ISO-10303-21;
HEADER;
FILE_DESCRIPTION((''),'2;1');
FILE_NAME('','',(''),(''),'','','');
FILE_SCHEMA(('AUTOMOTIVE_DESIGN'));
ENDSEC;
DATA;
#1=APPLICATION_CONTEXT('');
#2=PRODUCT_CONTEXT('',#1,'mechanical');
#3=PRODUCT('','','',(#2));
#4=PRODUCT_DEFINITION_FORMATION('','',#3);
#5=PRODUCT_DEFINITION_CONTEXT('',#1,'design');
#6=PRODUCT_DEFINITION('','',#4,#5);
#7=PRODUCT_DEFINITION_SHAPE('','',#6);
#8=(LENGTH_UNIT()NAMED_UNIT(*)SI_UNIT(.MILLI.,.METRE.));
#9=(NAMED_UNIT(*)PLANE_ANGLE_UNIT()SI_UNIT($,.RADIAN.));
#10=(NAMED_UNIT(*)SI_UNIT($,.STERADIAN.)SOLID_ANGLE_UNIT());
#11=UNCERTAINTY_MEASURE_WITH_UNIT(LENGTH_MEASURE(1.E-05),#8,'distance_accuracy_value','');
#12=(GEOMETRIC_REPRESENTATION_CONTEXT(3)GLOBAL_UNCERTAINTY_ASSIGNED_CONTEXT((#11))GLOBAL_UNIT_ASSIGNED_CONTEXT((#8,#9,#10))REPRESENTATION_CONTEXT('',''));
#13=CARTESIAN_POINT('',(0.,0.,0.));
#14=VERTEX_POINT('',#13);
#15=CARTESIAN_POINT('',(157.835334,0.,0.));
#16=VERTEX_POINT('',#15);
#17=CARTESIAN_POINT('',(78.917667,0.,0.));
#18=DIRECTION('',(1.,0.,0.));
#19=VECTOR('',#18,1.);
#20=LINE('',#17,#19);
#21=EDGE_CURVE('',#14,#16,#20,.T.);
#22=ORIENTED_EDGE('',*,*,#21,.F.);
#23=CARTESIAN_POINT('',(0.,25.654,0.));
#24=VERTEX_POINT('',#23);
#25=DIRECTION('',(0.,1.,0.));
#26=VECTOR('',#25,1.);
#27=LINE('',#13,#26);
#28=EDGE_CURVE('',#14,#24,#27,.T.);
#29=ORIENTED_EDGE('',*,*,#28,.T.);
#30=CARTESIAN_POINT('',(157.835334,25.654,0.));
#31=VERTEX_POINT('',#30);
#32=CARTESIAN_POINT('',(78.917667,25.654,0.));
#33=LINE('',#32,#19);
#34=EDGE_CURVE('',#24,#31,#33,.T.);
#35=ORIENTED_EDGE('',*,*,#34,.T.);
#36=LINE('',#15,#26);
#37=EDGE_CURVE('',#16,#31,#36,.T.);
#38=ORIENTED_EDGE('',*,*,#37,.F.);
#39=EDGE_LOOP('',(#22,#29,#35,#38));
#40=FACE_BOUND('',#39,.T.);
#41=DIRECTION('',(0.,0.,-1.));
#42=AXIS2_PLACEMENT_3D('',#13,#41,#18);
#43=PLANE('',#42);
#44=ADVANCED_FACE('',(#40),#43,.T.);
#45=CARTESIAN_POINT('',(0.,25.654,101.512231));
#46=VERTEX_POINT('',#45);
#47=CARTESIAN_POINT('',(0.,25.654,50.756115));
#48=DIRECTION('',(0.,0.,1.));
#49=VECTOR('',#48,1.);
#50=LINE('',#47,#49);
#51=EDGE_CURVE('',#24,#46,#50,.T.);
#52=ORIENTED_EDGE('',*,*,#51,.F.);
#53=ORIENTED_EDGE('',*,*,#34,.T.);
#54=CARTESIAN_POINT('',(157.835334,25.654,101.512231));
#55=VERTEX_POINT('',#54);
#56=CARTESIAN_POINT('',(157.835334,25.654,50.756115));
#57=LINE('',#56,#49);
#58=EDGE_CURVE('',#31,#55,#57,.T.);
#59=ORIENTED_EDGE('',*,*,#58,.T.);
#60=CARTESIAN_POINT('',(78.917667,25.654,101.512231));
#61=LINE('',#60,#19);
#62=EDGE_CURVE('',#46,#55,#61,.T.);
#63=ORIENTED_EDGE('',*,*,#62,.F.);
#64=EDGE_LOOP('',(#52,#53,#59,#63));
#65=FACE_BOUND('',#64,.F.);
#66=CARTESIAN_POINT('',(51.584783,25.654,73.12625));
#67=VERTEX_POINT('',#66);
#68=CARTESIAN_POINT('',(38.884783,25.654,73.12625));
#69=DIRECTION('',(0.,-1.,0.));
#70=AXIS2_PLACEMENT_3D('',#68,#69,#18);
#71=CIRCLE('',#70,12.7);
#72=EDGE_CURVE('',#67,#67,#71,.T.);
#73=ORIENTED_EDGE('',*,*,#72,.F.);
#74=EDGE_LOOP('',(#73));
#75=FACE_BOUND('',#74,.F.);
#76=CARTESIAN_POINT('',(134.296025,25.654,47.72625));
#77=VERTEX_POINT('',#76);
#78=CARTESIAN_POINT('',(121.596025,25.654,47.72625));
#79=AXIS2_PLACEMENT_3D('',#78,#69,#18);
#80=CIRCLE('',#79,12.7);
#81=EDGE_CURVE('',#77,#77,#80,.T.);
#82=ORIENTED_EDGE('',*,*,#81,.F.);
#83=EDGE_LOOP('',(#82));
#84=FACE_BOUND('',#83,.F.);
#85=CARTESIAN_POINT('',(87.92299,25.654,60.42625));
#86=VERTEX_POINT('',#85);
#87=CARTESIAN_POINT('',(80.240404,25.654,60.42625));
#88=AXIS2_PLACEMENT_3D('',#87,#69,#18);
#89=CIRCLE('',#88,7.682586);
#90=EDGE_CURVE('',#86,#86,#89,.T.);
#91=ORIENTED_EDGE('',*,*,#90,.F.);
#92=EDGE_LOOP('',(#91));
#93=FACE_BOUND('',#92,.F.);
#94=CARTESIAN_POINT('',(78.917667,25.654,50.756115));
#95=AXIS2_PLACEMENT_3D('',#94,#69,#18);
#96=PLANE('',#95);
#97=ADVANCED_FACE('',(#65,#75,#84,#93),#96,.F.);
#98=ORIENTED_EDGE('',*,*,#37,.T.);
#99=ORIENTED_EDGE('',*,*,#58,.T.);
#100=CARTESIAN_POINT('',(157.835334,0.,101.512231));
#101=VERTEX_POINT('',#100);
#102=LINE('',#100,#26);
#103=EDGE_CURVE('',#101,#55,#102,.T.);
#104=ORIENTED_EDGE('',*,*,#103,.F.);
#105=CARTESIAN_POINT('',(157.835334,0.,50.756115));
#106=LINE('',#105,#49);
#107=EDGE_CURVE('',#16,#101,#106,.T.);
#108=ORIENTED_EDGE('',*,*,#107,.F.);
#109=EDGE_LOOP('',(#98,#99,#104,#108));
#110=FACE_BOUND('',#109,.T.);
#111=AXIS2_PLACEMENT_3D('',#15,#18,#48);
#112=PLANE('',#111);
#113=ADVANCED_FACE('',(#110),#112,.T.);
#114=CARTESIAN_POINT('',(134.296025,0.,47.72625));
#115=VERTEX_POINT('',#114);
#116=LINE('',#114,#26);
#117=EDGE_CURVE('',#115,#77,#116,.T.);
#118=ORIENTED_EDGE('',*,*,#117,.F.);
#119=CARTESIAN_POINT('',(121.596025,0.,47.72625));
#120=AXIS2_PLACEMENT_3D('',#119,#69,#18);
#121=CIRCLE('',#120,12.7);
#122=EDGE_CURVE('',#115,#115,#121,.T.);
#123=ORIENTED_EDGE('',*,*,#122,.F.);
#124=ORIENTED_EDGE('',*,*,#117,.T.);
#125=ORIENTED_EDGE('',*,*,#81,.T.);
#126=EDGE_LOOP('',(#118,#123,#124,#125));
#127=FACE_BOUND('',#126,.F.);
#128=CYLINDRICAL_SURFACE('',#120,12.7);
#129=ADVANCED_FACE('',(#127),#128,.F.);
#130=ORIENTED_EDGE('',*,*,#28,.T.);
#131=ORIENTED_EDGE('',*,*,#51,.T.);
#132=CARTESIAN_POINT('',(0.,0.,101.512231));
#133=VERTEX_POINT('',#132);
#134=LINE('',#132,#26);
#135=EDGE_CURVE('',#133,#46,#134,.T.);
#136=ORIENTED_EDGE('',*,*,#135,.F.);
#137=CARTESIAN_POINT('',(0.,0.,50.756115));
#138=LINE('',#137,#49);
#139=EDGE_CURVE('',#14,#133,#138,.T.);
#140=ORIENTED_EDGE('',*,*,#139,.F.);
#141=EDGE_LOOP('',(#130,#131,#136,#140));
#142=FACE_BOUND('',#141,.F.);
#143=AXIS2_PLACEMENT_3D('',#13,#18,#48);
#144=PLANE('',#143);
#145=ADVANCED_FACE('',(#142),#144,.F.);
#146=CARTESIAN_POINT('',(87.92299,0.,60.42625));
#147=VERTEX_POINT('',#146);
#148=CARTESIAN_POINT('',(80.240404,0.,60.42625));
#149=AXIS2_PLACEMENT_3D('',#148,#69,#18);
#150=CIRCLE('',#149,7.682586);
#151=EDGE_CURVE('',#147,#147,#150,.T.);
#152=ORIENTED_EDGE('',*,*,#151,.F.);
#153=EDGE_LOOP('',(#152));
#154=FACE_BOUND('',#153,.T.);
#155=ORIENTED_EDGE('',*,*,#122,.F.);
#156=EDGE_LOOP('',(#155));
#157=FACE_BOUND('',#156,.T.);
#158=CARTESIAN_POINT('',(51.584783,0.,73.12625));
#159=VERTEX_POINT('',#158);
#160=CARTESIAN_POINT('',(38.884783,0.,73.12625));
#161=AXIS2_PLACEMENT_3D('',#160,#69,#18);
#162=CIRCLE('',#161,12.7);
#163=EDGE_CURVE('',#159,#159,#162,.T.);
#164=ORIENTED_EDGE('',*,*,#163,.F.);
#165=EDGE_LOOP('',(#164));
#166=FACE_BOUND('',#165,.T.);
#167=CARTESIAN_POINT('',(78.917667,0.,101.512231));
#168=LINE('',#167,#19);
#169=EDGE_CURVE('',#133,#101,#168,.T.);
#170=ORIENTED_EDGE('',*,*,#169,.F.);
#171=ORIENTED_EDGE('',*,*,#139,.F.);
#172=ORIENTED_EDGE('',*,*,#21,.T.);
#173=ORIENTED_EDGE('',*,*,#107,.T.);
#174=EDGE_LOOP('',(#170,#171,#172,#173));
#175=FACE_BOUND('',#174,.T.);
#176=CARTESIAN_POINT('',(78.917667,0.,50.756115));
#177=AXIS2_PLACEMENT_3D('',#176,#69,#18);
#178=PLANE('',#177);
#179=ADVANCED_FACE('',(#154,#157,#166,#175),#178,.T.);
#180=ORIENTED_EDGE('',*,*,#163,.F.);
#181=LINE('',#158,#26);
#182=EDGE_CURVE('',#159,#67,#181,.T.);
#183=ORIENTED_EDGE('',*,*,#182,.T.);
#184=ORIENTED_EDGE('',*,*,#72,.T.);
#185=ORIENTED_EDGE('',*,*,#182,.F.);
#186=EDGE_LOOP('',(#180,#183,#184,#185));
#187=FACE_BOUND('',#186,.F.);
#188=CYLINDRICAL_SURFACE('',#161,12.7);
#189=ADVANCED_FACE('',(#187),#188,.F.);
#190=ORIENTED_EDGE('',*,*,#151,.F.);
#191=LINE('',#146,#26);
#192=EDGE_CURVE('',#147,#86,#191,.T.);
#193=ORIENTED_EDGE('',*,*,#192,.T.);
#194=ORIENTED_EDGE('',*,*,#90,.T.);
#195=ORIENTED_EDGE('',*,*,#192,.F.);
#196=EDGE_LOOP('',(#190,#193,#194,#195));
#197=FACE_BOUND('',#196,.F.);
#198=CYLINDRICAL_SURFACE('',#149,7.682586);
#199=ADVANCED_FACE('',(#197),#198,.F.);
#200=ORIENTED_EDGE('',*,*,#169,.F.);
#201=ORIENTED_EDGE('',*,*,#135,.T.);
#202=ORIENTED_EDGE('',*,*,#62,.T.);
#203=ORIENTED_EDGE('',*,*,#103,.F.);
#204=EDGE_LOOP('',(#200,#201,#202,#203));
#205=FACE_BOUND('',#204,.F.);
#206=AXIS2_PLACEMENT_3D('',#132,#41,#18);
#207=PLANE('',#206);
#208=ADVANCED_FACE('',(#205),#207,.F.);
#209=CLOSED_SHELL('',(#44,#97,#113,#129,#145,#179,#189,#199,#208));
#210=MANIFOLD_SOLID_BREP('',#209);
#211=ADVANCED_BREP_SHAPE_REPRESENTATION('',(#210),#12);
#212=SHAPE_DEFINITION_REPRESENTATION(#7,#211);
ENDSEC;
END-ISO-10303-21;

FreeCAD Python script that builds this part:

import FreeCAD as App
import Part
import Sketcher
Q = App.Units.Quantity

doc = App.newDocument("Part")
body = doc.addObject("PartDesign::Body", "Body")

# Sketch on XZ plane
sketch1 = doc.addObject("Sketcher::SketchObject", "Sketch")
body.addObject(sketch1)
sketch1.AttachmentSupport = (doc.XZ_Plane, [""])
sketch1.MapMode = "FlatFace"
sketch1.addGeometry([
    Part.LineSegment(App.Vector(0, 102, 0), App.Vector(0, 0, 0)),
    Part.LineSegment(App.Vector(0, 0, 0), App.Vector(158, 0, 0)),
    Part.LineSegment(App.Vector(158, 0, 0), App.Vector(158, 102, 0)),
    Part.LineSegment(App.Vector(158, 102, 0), App.Vector(0, 102, 0)),
], False)
sketch1.addConstraint([
    Sketcher.Constraint("Coincident", 0, 2, 1, 1),
    Sketcher.Constraint("Coincident", 1, 2, 2, 1),
    Sketcher.Constraint("Coincident", 2, 2, 3, 1),
    Sketcher.Constraint("Coincident", 3, 2, 0, 1),
    Sketcher.Constraint("Vertical", 0),
    Sketcher.Constraint("Horizontal", 1),
    Sketcher.Constraint("Vertical", 2),
    Sketcher.Constraint("Horizontal", 3),
    Sketcher.Constraint("Coincident", 0, 2, -1, 1),
    Sketcher.Constraint("DistanceY", 0, 2, 0, 1, 101.512231),
    Sketcher.Constraint("DistanceX", 1, 1, 1, 2, 157.835335),
])
pad1 = doc.addObject("PartDesign::Pad", "Pad")
body.addObject(pad1)
pad1.Profile = sketch1
pad1.Length = Q("1.01 in")
pad1.Reversed = True

# Sketch on XZ plane
sketch2 = doc.addObject("Sketcher::SketchObject", "Sketch001")
body.addObject(sketch2)
sketch2.AttachmentSupport = (doc.XZ_Plane, [""])
sketch2.MapMode = "FlatFace"
sketch2.addGeometry([
    Part.Circle(App.Vector(39, 73, 0), App.Vector(0, 0, 1), 13),
    Part.Circle(App.Vector(122, 48, 0), App.Vector(0, 0, 1), 13),
    Part.Circle(App.Vector(80, 60, 0), App.Vector(0, 0, 1), 8),
], False)
sketch2.addConstraint([
    Sketcher.Constraint("Equal", 0, 1),
    Sketcher.Constraint("Diameter", 0, Q("1 in")),
    Sketcher.Constraint("DistanceY", 1, 3, 0, 3, Q("1 in")),
    Sketcher.Constraint("DistanceY", 2, 3, 0, 3, Q("0.5 in")),
    Sketcher.Constraint("Diameter", 2, 15.365172),
    Sketcher.Constraint("DistanceY", -1, 1, 0, 3, 73.12625),
    Sketcher.Constraint("DistanceX", 0, 3, 1, 3, 82.711242),
    Sketcher.Constraint("DistanceX", 0, 3, 2, 3, 41.355621),
    Sketcher.Constraint("DistanceX", -1, 1, 0, 3, 38.884783),
])
pocket1 = doc.addObject("PartDesign::Pocket", "Pocket")
body.addObject(pocket1)
pocket1.Profile = sketch2
pocket1.Type = "ThroughAll"

doc.recompute()
